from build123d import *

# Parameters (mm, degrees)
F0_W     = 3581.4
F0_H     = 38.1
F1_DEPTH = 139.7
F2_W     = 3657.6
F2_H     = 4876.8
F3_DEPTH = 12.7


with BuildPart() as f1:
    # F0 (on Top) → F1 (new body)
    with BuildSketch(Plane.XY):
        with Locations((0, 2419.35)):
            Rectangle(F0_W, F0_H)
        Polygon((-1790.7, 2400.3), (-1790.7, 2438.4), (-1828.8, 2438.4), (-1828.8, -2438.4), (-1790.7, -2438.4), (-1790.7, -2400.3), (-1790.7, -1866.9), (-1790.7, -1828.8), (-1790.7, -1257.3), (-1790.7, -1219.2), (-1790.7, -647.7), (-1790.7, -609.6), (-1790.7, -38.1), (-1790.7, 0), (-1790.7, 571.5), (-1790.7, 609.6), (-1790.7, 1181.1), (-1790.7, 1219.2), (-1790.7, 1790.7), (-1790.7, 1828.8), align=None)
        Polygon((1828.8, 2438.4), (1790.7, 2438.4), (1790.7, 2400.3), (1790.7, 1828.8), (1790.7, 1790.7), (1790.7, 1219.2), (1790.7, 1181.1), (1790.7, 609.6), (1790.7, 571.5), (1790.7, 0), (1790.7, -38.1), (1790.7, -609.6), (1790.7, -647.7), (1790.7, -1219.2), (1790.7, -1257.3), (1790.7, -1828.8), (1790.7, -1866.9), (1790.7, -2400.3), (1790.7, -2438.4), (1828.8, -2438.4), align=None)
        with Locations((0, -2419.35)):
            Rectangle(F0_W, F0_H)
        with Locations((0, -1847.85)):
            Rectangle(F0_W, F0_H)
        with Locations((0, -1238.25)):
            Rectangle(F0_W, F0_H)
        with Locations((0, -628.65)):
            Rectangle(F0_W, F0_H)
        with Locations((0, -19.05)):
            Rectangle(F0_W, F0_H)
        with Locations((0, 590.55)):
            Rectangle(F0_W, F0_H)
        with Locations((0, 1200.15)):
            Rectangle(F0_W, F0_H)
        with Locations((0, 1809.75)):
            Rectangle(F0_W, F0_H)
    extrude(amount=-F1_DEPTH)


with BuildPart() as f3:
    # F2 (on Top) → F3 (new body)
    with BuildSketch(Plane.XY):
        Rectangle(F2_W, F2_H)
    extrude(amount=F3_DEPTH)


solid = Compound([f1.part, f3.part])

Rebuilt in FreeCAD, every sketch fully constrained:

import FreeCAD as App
import Part
import Sketcher
from FreeCAD import Vector
Q = App.Units.Quantity


def add_polygon(sketch, points):
    """Adds a closed chain of lines whose ends are joined by coincident constraints."""
    first, n = sketch.GeometryCount, len(points)
    for a, b in zip(points, points[1:] + points[:1]):
        sketch.addGeometry(Part.LineSegment(App.Vector(*a, 0), App.Vector(*b, 0)), False)
    for i in range(n):
        sketch.addConstraint(Sketcher.Constraint("Coincident", first + i, 2, first + (i + 1) % n, 1))

doc = App.newDocument("Part")
body = doc.addObject("PartDesign::Body", "Body")

sketch1 = doc.addObject("Sketcher::SketchObject", "Sketch")
body.addObject(sketch1)
sketch1.AttachmentSupport = (doc.XY_Plane, [""])
sketch1.MapMode = "FlatFace"
add_polygon(sketch1, [(1828.8, -2438.4), (1828.8, 2438.4), (-1828.8, 2438.4), (-1828.8, -2438.4)])
add_polygon(sketch1, [(-1790.7, 2400.3), (1790.7, 2400.3), (1790.7, 1828.8), (-1790.7, 1828.8)])
add_polygon(sketch1, [(1790.7, 1790.7), (1790.7, 1219.2), (-1790.7, 1219.2), (-1790.7, 1790.7)])
add_polygon(sketch1, [(1790.7, 1181.1), (1790.7, 609.6), (-1790.7, 609.6), (-1790.7, 1181.1)])
add_polygon(sketch1, [(1790.7, 571.5), (1790.7, 0), (-1790.7, 0), (-1790.7, 571.5)])
add_polygon(sketch1, [(1790.7, -38.1), (1790.7, -609.6), (-1790.7, -609.6), (-1790.7, -38.1)])
add_polygon(sketch1, [(1790.7, -647.7), (1790.7, -1219.2), (-1790.7, -1219.2), (-1790.7, -647.7)])
add_polygon(sketch1, [(1790.7, -1257.3), (1790.7, -1828.8), (-1790.7, -1828.8), (-1790.7, -1257.3)])
add_polygon(sketch1, [(1790.7, -1866.9), (1790.7, -2400.3), (-1790.7, -2400.3), (-1790.7, -1866.9)])
sketch1.addConstraint(Sketcher.Constraint("Vertical", 0))
sketch1.addConstraint(Sketcher.Constraint("Horizontal", 1))
sketch1.addConstraint(Sketcher.Constraint("Vertical", 2))
sketch1.addConstraint(Sketcher.Constraint("Horizontal", 3))
sketch1.addConstraint(Sketcher.Constraint("Horizontal", 4))
sketch1.addConstraint(Sketcher.Constraint("Vertical", 5))
sketch1.addConstraint(Sketcher.Constraint("Horizontal", 6))
sketch1.addConstraint(Sketcher.Constraint("Vertical", 7))
sketch1.addConstraint(Sketcher.Constraint("Vertical", 8))
sketch1.addConstraint(Sketcher.Constraint("Horizontal", 9))
sketch1.addConstraint(Sketcher.Constraint("Vertical", 10))
sketch1.addConstraint(Sketcher.Constraint("Horizontal", 11))
sketch1.addConstraint(Sketcher.Constraint("Vertical", 12))
sketch1.addConstraint(Sketcher.Constraint("Horizontal", 13))
sketch1.addConstraint(Sketcher.Constraint("Vertical", 14))
sketch1.addConstraint(Sketcher.Constraint("Horizontal", 15))
sketch1.addConstraint(Sketcher.Constraint("Vertical", 16))
sketch1.addConstraint(Sketcher.Constraint("Horizontal", 17))
sketch1.addConstraint(Sketcher.Constraint("Vertical", 18))
sketch1.addConstraint(Sketcher.Constraint("Horizontal", 19))
sketch1.addConstraint(Sketcher.Constraint("Vertical", 20))
sketch1.addConstraint(Sketcher.Constraint("Horizontal", 21))
sketch1.addConstraint(Sketcher.Constraint("Vertical", 22))
sketch1.addConstraint(Sketcher.Constraint("Horizontal", 23))
sketch1.addConstraint(Sketcher.Constraint("Vertical", 24))
sketch1.addConstraint(Sketcher.Constraint("Horizontal", 25))
sketch1.addConstraint(Sketcher.Constraint("Vertical", 26))
sketch1.addConstraint(Sketcher.Constraint("Horizontal", 27))
sketch1.addConstraint(Sketcher.Constraint("Vertical", 28))
sketch1.addConstraint(Sketcher.Constraint("Horizontal", 29))
sketch1.addConstraint(Sketcher.Constraint("Vertical", 30))
sketch1.addConstraint(Sketcher.Constraint("Horizontal", 31))
sketch1.addConstraint(Sketcher.Constraint("Vertical", 32))
sketch1.addConstraint(Sketcher.Constraint("Horizontal", 33))
sketch1.addConstraint(Sketcher.Constraint("Vertical", 34))
sketch1.addConstraint(Sketcher.Constraint("Horizontal", 35))
sketch1.addConstraint(Sketcher.Constraint("Symmetric", 0, 2, 2, 2, -1, 1))
sketch1.addConstraint(Sketcher.Constraint("Symmetric", 16, 2, 17, 2, -1, 1))
sketch1.addConstraint(Sketcher.Constraint("Symmetric", 13, 2, 20, 2, -1, 1))
sketch1.addConstraint(Sketcher.Constraint("Symmetric", 9, 2, 24, 2, -1, 1))
sketch1.addConstraint(Sketcher.Constraint("Symmetric", 6, 2, 28, 2, -1, 1))
sketch1.addConstraint(Sketcher.Constraint("Symmetric", 7, 2, 32, 2, -1, 1))
sketch1.addConstraint(Sketcher.Constraint("Vertical", 5, 2, 8, 2))
sketch1.addConstraint(Sketcher.Constraint("Vertical", 7, 2, 9, 2))
sketch1.addConstraint(Sketcher.Constraint("Vertical", 11, 2, 12, 2))
sketch1.addConstraint(Sketcher.Constraint("Vertical", 10, 2, 13, 2))
sketch1.addConstraint(Sketcher.Constraint("Vertical", 15, 2, 16, 2))
sketch1.addConstraint(Sketcher.Constraint("Vertical", 14, 2, 17, 2))
sketch1.addConstraint(Sketcher.Constraint("Vertical", 18, 2, 21, 2))
sketch1.addConstraint(Sketcher.Constraint("Vertical", 22, 2, 25, 2))
sketch1.addConstraint(Sketcher.Constraint("Vertical", 26, 2, 29, 2))
sketch1.addConstraint(Sketcher.Constraint("Vertical", 30, 2, 33, 2))
sketch1.addConstraint(Sketcher.Constraint("Equal", 7, 8))
sketch1.addConstraint(Sketcher.Constraint("Equal", 10, 12))
sketch1.addConstraint(Sketcher.Constraint("Equal", 14, 16))
sketch1.addConstraint(Sketcher.Constraint("Equal", 18, 20))
sketch1.addConstraint(Sketcher.Constraint("Equal", 22, 24))
sketch1.addConstraint(Sketcher.Constraint("Equal", 26, 28))
sketch1.addConstraint(Sketcher.Constraint("DistanceX", 1, 2, 1, 1, Q("144 in")))
sketch1.addConstraint(Sketcher.Constraint("DistanceX", 4, 1, 4, 2, Q("141 in")))
sketch1.addConstraint(Sketcher.Constraint("DistanceY", 0, 1, 0, 2, Q("192 in")))
sketch1.addConstraint(Sketcher.Constraint("DistanceY", 32, 2, 32, 1, Q("21 in")))
sketch1.addConstraint(Sketcher.Constraint("DistanceY", 5, 2, 5, 1, Q("22.5 in")))
sketch1.addConstraint(Sketcher.Constraint("DistanceY", -1, 1, 5, 2, Q("72 in")))
sketch1.addConstraint(Sketcher.Constraint("DistanceY", -1, 1, 8, 2, Q("48 in")))
sketch1.addConstraint(Sketcher.Constraint("DistanceY", -1, 1, 12, 2, Q("24 in")))
pad1 = doc.addObject("PartDesign::Pad", "Pad")
body.addObject(pad1)
pad1.Profile = sketch1
pad1.Length = Q("5.5 in")
pad1.Reversed = True
body2 = doc.addObject("PartDesign::Body", "Body001")

sketch2 = doc.addObject("Sketcher::SketchObject", "Sketch001")
body2.addObject(sketch2)
sketch2.AttachmentSupport = (doc.getObject("XY_Plane001"), [""])
sketch2.MapMode = "FlatFace"
add_polygon(sketch2, [(-1828.8, 2438.4), (-1828.8, -2438.4), (1828.8, -2438.4), (1828.8, 2438.4)])
sketch2.addConstraint(Sketcher.Constraint("Vertical", 0))
sketch2.addConstraint(Sketcher.Constraint("Horizontal", 1))
sketch2.addConstraint(Sketcher.Constraint("Vertical", 2))
sketch2.addConstraint(Sketcher.Constraint("Horizontal", 3))
sketch2.addConstraint(Sketcher.Constraint("Symmetric", 0, 2, 2, 2, -1, 1))
sketch2.addConstraint(Sketcher.Constraint("DistanceX", 1, 1, 1, 2, Q("144 in")))
sketch2.addConstraint(Sketcher.Constraint("DistanceY", 0, 2, 0, 1, Q("192 in")))
pad2 = doc.addObject("PartDesign::Pad", "Pad001")
body2.addObject(pad2)
pad2.Profile = sketch2
pad2.Length = Q("0.5 in")

doc.recompute()
